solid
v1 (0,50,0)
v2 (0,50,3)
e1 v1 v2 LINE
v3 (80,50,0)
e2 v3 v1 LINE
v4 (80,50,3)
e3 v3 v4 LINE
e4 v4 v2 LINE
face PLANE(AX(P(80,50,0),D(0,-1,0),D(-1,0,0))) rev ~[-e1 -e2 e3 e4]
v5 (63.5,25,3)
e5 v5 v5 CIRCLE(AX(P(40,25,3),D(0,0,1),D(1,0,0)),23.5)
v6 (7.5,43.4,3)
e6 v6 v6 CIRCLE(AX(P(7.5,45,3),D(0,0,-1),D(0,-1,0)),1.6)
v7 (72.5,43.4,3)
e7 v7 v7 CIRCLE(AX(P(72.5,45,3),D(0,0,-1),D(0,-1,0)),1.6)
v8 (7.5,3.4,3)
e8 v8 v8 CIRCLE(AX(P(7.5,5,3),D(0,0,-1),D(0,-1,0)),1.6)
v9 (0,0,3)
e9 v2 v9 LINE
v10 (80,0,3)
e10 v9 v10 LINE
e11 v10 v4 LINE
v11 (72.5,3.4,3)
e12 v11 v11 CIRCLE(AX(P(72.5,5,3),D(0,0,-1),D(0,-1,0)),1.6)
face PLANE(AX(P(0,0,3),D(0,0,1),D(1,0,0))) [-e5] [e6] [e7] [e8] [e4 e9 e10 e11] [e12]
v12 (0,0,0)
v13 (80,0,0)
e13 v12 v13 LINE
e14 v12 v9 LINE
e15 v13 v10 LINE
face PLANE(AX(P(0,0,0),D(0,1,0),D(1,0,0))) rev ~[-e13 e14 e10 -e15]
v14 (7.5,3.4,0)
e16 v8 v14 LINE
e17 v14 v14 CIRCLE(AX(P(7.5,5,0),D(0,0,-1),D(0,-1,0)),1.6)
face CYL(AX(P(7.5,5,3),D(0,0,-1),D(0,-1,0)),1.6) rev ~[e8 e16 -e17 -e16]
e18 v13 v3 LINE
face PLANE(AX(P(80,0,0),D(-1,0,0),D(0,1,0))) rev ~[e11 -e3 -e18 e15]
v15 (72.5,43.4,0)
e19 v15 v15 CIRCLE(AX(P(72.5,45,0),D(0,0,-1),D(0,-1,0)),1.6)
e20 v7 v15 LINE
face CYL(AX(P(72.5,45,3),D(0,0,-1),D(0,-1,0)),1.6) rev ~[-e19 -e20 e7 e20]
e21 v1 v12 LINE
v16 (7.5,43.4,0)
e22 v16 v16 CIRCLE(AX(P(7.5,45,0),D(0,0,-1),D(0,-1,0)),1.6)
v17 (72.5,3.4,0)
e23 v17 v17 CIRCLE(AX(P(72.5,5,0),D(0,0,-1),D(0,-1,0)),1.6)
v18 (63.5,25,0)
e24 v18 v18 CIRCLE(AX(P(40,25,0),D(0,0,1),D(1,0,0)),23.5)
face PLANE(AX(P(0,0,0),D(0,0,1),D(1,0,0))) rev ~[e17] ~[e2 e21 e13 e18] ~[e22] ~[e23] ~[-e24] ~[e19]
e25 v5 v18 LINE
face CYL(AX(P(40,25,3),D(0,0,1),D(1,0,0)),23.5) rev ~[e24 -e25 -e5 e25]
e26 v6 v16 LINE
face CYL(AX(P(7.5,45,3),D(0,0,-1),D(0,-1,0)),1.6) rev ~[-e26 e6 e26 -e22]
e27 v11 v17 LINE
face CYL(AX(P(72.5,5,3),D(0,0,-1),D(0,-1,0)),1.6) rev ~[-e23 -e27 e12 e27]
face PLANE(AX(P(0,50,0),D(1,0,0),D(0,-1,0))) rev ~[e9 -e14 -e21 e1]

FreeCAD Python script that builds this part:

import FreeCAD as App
import Part
import Sketcher
from FreeCAD import Vector

doc = App.newDocument("Part")
body = doc.addObject("PartDesign::Body", "Body")

# Sketch on XY plane
sketch1 = body.newObject("Sketcher::SketchObject", "Sketch")
sketch1.AttachmentSupport = (doc.getObject("XY_Plane"), [""])
sketch1.MapMode = "FlatFace"
sketch1.addGeometry([
    Part.LineSegment(Vector(0, 50, 0), Vector(0, 0, 0)),
    Part.LineSegment(Vector(0, 0, 0), Vector(80, 0, 0)),
    Part.LineSegment(Vector(80, 0, 0), Vector(80, 50, 0)),
    Part.LineSegment(Vector(80, 50, 0), Vector(0, 50, 0)),
], False)
sketch1.addConstraint([
    Sketcher.Constraint("Coincident", 0, 2, 1, 1),
    Sketcher.Constraint("Coincident", 1, 2, 2, 1),
    Sketcher.Constraint("Coincident", 2, 2, 3, 1),
    Sketcher.Constraint("Coincident", 3, 2, 0, 1),
    Sketcher.Constraint("Vertical", 0),
    Sketcher.Constraint("Horizontal", 1),
    Sketcher.Constraint("Vertical", 2),
    Sketcher.Constraint("Horizontal", 3),
    Sketcher.Constraint("Coincident", 0, 2, -1, 1),
    Sketcher.Constraint("DistanceX", 1, 1, 1, 2, 80.0),
    Sketcher.Constraint("DistanceY", 0, 2, 0, 1, 50.0),
])
pad1 = body.newObject("PartDesign::Pad", "Pad")
pad1.Profile = sketch1
pad1.Length = 3

# Sketch on XY plane
sketch2 = body.newObject("Sketcher::SketchObject", "Sketch001")
sketch2.AttachmentSupport = (doc.getObject("XY_Plane"), [""])
sketch2.MapMode = "FlatFace"
sketch2.AttachmentOffset = App.Placement(Vector(0, 0, 3), App.Rotation())
sketch2.addGeometry(Part.Circle(Vector(40, 25, 0), Vector(0, 0, 1), 24), False)
sketch2.addConstraint([
    Sketcher.Constraint("Diameter", 0, 47.0),
    Sketcher.Constraint("DistanceX", -1, 1, 0, 3, 40.0),
    Sketcher.Constraint("DistanceY", -1, 1, 0, 3, 25.0),
])
pocket1 = body.newObject("PartDesign::Pocket", "Pocket")
pocket1.Profile = sketch2
pocket1.Length = 3

# Sketch on XY plane
sketch3 = body.newObject("Sketcher::SketchObject", "Sketch002")
sketch3.AttachmentSupport = (doc.getObject("XY_Plane"), [""])
sketch3.MapMode = "FlatFace"
sketch3.AttachmentOffset = App.Placement(Vector(0, 0, 3), App.Rotation())
sketch3.addGeometry([
    Part.Circle(Vector(7.5, 45, 0), Vector(0, 0, 1), 1.6),
    Part.Circle(Vector(7.5, 5, 0), Vector(0, 0, 1), 1.6),
    Part.Circle(Vector(72.5, 45, 0), Vector(0, 0, 1), 1.6),
    Part.Circle(Vector(72.5, 5, 0), Vector(0, 0, 1), 1.6),
], False)
sketch3.addConstraint([
    Sketcher.Constraint("Equal", 0, 1),
    Sketcher.Constraint("Equal", 1, 2),
    Sketcher.Constraint("Equal", 2, 3),
    Sketcher.Constraint("Horizontal", 0, 3, 2, 3),
    Sketcher.Constraint("Horizontal", 1, 3, 3, 3),
    Sketcher.Constraint("Vertical", 0, 3, 1, 3),
    Sketcher.Constraint("Vertical", 2, 3, 3, 3),
    Sketcher.Constraint("Diameter", 0, 3.2),
    Sketcher.Constraint("DistanceY", -1, 1, 0, 3, 45.0),
    Sketcher.Constraint("DistanceY", -1, 1, 1, 3, 5.0),
    Sketcher.Constraint("DistanceX", 0, 3, 2, 3, 65.0),
    Sketcher.Constraint("DistanceX", -1, 1, 0, 3, 7.5),
])
doc.recompute()
hole = body.newObject("PartDesign::Hole", "Hole")
hole.Profile = sketch3
hole.ThreadType = "None"
hole.Diameter = 3.2
hole.DepthType = "Dimension"
hole.Depth = 3
hole.DrillPoint = "Flat"

doc.recompute()
